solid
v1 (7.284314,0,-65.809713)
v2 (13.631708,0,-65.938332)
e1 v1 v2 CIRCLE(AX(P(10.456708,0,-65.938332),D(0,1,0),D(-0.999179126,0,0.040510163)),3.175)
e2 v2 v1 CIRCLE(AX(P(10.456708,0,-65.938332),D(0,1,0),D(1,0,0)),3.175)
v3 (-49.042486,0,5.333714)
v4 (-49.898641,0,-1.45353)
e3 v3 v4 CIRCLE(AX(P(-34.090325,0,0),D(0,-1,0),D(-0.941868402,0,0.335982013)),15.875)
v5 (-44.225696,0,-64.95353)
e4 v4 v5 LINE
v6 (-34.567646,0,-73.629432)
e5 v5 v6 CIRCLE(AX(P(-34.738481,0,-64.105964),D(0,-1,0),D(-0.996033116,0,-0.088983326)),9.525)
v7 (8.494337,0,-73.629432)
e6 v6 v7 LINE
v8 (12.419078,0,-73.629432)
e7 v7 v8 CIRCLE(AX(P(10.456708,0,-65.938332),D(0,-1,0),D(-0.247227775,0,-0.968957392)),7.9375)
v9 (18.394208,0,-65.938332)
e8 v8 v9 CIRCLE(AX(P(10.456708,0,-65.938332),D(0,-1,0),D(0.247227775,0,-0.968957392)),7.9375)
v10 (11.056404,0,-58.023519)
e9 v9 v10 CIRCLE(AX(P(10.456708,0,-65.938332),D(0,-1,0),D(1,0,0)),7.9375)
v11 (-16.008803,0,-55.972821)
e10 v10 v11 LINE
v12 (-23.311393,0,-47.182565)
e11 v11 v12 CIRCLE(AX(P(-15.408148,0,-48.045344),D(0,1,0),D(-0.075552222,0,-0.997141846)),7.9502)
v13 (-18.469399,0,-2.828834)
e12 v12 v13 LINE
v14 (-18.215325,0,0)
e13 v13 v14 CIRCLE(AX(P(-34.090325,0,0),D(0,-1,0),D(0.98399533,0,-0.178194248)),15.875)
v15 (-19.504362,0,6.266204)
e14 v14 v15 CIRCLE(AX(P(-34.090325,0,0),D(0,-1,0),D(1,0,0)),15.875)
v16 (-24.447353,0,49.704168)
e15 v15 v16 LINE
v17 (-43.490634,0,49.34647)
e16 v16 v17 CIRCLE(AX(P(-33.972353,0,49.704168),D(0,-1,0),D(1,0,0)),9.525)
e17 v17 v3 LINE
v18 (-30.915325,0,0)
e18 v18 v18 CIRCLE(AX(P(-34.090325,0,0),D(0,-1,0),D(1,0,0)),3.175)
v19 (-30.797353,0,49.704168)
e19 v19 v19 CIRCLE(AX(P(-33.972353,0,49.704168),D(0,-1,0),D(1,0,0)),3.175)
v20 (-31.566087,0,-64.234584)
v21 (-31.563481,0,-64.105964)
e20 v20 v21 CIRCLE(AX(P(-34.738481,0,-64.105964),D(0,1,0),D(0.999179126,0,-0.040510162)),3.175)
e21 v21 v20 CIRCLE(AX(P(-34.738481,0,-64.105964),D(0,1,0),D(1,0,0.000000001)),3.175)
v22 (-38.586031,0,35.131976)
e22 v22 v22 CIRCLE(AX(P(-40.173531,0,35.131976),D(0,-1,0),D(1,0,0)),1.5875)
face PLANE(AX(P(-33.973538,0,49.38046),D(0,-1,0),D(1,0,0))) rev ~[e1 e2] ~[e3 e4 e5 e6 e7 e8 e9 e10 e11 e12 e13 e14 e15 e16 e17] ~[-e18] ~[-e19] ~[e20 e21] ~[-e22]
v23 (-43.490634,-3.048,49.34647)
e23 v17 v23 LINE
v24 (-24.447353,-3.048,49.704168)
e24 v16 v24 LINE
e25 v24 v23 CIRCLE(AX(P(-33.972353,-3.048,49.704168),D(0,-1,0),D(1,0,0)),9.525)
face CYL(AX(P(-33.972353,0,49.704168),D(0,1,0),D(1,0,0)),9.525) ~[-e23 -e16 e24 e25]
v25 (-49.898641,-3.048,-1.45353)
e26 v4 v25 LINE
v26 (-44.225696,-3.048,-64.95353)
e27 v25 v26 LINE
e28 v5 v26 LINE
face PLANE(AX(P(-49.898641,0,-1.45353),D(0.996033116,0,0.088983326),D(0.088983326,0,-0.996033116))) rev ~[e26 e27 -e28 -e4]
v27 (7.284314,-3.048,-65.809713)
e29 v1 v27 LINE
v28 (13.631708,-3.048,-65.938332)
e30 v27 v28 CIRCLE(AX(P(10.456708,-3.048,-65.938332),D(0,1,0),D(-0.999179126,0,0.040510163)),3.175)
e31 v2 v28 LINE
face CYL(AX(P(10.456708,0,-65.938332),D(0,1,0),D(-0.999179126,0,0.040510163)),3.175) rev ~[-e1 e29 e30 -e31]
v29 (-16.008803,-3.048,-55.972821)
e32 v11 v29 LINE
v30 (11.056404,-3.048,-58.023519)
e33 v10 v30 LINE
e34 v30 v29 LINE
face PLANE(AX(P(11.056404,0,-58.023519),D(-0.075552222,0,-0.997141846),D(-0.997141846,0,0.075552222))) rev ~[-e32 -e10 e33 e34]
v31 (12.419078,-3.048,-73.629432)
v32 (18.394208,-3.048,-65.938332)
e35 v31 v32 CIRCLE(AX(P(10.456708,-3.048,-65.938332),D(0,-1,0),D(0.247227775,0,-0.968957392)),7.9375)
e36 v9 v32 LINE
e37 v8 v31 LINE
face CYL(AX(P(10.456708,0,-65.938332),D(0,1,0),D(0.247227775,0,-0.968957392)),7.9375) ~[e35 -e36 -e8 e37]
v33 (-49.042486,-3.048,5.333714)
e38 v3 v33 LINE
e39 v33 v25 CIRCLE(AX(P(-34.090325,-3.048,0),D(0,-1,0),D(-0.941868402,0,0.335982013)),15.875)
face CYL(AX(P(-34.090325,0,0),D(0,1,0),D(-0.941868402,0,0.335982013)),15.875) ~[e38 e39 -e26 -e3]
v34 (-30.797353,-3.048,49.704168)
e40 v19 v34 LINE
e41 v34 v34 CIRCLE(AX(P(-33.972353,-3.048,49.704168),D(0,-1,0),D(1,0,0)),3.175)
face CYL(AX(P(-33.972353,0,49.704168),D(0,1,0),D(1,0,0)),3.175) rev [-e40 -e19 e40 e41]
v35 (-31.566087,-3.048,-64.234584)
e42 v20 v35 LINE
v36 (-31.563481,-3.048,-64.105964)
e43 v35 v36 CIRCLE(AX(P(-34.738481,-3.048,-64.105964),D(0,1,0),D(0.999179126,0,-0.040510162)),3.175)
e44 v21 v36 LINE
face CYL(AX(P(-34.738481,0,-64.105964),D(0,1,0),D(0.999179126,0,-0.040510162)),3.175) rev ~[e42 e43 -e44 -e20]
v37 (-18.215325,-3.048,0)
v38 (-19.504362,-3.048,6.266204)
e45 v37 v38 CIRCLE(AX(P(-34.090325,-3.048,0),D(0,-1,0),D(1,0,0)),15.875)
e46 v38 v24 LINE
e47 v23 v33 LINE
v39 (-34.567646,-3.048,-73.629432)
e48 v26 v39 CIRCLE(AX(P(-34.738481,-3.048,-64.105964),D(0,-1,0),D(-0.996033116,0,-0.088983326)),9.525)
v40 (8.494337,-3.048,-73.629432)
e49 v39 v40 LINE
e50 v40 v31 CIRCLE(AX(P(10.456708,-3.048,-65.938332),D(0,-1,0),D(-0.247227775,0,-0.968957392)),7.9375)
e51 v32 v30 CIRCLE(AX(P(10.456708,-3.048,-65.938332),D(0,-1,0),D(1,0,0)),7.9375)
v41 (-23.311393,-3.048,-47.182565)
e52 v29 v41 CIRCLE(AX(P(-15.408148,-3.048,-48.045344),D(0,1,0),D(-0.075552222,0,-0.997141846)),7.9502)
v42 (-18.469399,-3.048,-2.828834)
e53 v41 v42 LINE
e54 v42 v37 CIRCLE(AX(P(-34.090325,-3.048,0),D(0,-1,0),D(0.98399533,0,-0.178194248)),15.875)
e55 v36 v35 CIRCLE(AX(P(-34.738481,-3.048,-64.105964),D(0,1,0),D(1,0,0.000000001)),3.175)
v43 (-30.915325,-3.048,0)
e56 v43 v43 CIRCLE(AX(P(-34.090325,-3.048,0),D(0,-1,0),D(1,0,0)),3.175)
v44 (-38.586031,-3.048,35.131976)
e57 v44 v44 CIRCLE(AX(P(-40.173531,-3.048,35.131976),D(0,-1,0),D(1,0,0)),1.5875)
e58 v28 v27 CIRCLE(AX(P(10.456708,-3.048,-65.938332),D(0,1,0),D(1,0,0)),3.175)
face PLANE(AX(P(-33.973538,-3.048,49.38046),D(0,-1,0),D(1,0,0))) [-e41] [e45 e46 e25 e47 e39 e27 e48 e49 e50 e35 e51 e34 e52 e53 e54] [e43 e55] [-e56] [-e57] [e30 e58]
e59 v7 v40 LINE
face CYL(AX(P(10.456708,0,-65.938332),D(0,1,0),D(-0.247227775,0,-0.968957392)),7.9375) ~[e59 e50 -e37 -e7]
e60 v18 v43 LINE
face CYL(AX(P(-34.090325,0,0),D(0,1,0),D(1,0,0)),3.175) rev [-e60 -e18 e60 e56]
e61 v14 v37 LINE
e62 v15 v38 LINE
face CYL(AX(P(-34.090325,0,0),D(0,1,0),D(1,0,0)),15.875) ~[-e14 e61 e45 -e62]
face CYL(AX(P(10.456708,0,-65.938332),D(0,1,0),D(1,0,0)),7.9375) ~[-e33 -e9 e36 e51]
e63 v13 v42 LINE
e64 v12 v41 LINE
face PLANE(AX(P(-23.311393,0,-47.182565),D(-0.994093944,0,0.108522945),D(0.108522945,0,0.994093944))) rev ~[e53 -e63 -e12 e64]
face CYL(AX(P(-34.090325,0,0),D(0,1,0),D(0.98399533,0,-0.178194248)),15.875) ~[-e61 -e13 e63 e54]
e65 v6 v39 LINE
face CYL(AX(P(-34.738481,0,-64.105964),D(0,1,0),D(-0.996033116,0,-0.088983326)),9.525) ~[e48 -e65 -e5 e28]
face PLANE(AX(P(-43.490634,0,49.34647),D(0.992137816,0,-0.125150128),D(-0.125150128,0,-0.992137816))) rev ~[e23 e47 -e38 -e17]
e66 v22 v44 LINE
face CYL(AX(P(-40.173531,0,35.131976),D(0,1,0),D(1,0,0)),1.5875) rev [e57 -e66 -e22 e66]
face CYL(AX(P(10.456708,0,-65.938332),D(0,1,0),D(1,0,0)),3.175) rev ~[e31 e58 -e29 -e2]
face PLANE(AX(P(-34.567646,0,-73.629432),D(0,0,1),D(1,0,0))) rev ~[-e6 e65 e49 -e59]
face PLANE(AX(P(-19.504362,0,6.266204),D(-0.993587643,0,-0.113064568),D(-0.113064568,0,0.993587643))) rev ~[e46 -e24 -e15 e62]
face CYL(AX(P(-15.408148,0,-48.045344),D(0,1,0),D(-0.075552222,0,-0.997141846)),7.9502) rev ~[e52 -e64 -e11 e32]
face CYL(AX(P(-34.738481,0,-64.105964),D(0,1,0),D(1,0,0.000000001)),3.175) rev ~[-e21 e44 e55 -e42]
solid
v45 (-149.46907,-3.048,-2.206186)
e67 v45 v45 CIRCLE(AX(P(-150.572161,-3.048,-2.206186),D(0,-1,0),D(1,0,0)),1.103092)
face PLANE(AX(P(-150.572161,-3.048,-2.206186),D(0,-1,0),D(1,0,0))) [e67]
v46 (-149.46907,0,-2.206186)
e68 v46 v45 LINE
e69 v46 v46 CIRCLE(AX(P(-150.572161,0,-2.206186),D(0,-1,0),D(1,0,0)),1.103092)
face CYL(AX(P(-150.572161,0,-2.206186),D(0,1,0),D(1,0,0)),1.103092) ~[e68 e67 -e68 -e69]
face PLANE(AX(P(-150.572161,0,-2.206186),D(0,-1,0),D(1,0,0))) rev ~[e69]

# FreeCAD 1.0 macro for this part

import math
import FreeCAD as App
import Part
import Sketcher
from FreeCAD import Vector
Q = App.Units.Quantity

doc = App.newDocument("Part")
body = doc.addObject("PartDesign::Body", "Body")

sketch1 = body.newObject("Sketcher::SketchObject", "Sketch")
sketch1.AttachmentSupport = (doc.getObject("XZ_Plane"), [""])
sketch1.MapMode = "FlatFace"
sketch1.addGeometry([
    Part.LineSegment(Vector(-19.5, 6.27, 0), Vector(-24.45, 49.7, 0)),
    Part.ArcOfCircle(Part.Circle(Vector(-33.97, 49.7, 0), Vector(0, 0, 1), 9.53), math.radians(0), math.radians(182)),
    Part.LineSegment(Vector(-43.49, 49.35, 0), Vector(-49.04, 5.33, 0)),
    Part.ArcOfCircle(Part.Circle(Vector(-34.09, 0, 0), Vector(0, 0, 1), 15.87), math.radians(160), math.radians(185)),
    Part.LineSegment(Vector(-49.9, -1.45, 0), Vector(-44.23, -64.95, 0)),
    Part.ArcOfCircle(Part.Circle(Vector(-34.74, -64.11, 0), Vector(0, 0, 1), 9.53), math.radians(-175), math.radians(-89)),
    Part.LineSegment(Vector(-34.57, -73.63, 0), Vector(8.49, -73.63, 0)),
    Part.ArcOfCircle(Part.Circle(Vector(10.46, -65.94, 0), Vector(0, 0, 1), 7.94), math.radians(-104), math.radians(-76)),
    Part.ArcOfCircle(Part.Circle(Vector(10.46, -65.94, 0), Vector(0, 0, 1), 7.94), math.radians(-76), math.radians(0)),
    Part.ArcOfCircle(Part.Circle(Vector(10.46, -65.94, 0), Vector(0, 0, 1), 7.94), math.radians(0), math.radians(86)),
    Part.LineSegment(Vector(11.06, -58.02, 0), Vector(-16.01, -55.97, 0)),
    Part.ArcOfCircle(Part.Circle(Vector(-15.41, -48.05, 0), Vector(0, 0, 1), 7.95), math.radians(174), math.radians(266)),
    Part.LineSegment(Vector(-23.31, -47.18, 0), Vector(-18.47, -2.83, 0)),
    Part.ArcOfCircle(Part.Circle(Vector(-34.09, 0, 0), Vector(0, 0, 1), 15.88), math.radians(-10.26), math.radians(0)),
    Part.ArcOfCircle(Part.Circle(Vector(-34.09, 0, 0), Vector(0, 0, 1), 15.87), math.radians(0), math.radians(23)),
    Part.ArcOfCircle(Part.Circle(Vector(-34.74, -64.11, 0), Vector(0, 0, 1), 3.17), math.radians(0), math.radians(358)),
    Part.ArcOfCircle(Part.Circle(Vector(-34.74, -64.11, 0), Vector(0, 0, 1), 3.17), math.radians(-2.32), math.radians(0)),
    Part.ArcOfCircle(Part.Circle(Vector(10.46, -65.94, 0), Vector(0, 0, 1), 3.17), math.radians(0), math.radians(178)),
    Part.ArcOfCircle(Part.Circle(Vector(10.46, -65.94, 0), Vector(0, 0, 1), 3.17), math.radians(178), math.radians(360)),
    Part.Circle(Vector(-34.09, 0, 0), Vector(0, 0, 1), 3.17),
    Part.Circle(Vector(-40.17, 35.13, 0), Vector(0, 0, 1), 1.59),
    Part.Circle(Vector(-33.97, 49.7, 0), Vector(0, 0, 1), 3.17),
], False)
sketch1.addConstraint([
    Sketcher.Constraint("Coincident", 0, 2, 1, 1),
    Sketcher.Constraint("Coincident", 1, 2, 2, 1),
    Sketcher.Constraint("Coincident", 2, 2, 3, 1),
    Sketcher.Constraint("Coincident", 3, 2, 4, 1),
    Sketcher.Constraint("Tangent", 4, 2, 5, 1),
    Sketcher.Constraint("Coincident", 5, 2, 6, 1),
    Sketcher.Constraint("Coincident", 6, 2, 7, 1),
    Sketcher.Constraint("Tangent", 7, 2, 8, 1),
    Sketcher.Constraint("Tangent", 8, 2, 9, 1),
    Sketcher.Constraint("Tangent", 9, 2, 10, 1),
    Sketcher.Constraint("Tangent", 10, 2, 11, 2),
    Sketcher.Constraint("Tangent", 11, 1, 12, 1),
    Sketcher.Constraint("Coincident", 12, 2, 13, 1),
    Sketcher.Constraint("Tangent", 13, 2, 14, 1),
    Sketcher.Constraint("Coincident", 14, 2, 0, 1),
    Sketcher.Constraint("Tangent", 15, 1, 16, 2),
    Sketcher.Constraint("Coincident", 16, 1, 15, 2),
    Sketcher.Constraint("Tangent", 17, 1, 18, 2),
    Sketcher.Constraint("Coincident", 18, 1, 17, 2),
    Sketcher.Constraint("Horizontal", 6),
    Sketcher.Constraint("Coincident", 9, 3, 7, 3),
    Sketcher.Constraint("Coincident", 13, 3, 3, 3),
    Sketcher.Constraint("Coincident", 15, 3, 5, 3),
    Sketcher.Constraint("Coincident", 17, 3, 7, 3),
    Sketcher.Constraint("Coincident", 19, 3, 3, 3),
    Sketcher.Constraint("Coincident", 21, 3, 1, 3),
    Sketcher.Constraint("Equal", 1, 5),
    Sketcher.Constraint("Equal", 3, 13),
    Sketcher.Constraint("Equal", 13, 14),
    Sketcher.Constraint("Equal", 16, 17),
    Sketcher.Constraint("Equal", 18, 19),
    Sketcher.Constraint("Equal", 19, 21),
    Sketcher.Constraint("PointOnObject", 3, 3, -1),
    Sketcher.Constraint("PointOnObject", 13, 2, -1),
    Sketcher.Constraint("Horizontal", 21, 3, 0, 2),
    Sketcher.Constraint("Horizontal", 6, 2, 7, 2),
    Sketcher.Constraint("Horizontal", 18, 3, 8, 2),
    Sketcher.Constraint("Horizontal", 16, 3, 15, 1),
    Sketcher.Constraint("Horizontal", 8, 2, 17, 1),
    Sketcher.Constraint("Diameter", 19, Q("0.25 in")),
    Sketcher.Constraint("Diameter", 20, Q("0.125 in")),
    Sketcher.Constraint("Radius", 1, Q("0.375 in")),
    Sketcher.Constraint("Radius", 3, Q("0.625 in")),
    Sketcher.Constraint("Radius", 7, Q("0.3125 in")),
    Sketcher.Constraint("Radius", 11, Q("0.313 in")),
    Sketcher.Constraint("Distance", 0, Q("43.718301 mm")),
    Sketcher.Constraint("Distance", 4, Q("63.7529 mm")),
    Sketcher.Constraint("DistanceX", 12, 2, -1, 1, Q("18.469399 mm")),
    Sketcher.Constraint("DistanceY", 7, 3, 1, 3, Q("115.6425 mm")),
    Sketcher.Constraint("DistanceY", 1, 2, 1, 3, Q("0.357698 mm")),
    Sketcher.Constraint("DistanceY", 5, 2, 4, 2, Q("8.675902 mm")),
    Sketcher.Constraint("DistanceX", 5, 2, 11, 3, Q("19.159499 mm")),
    Sketcher.Constraint("DistanceY", 6, 2, 7, 3, Q("7.691099 mm")),
    Sketcher.Constraint("DistanceY", 16, 3, 11, 1, Q("16.923399 mm")),
    Sketcher.Constraint("DistanceX", 6, 1, 6, 2, Q("43.061984 mm")),
    Sketcher.Constraint("DistanceX", 5, 3, -1, 1, Q("34.738481 mm")),
    Sketcher.Constraint("DistanceX", 20, 3, -1, 1, Q("40.173531 mm")),
    Sketcher.Constraint("DistanceY", -1, 1, 1, 2, Q("49.34647 mm")),
    Sketcher.Constraint("DistanceX", 3, 2, -1, 1, Q("49.898641 mm")),
    Sketcher.Constraint("DistanceX", 14, 2, -1, 1, Q("19.504362 mm")),
    Sketcher.Constraint("DistanceY", 20, 3, 1, 3, Q("14.572192 mm")),
    Sketcher.Constraint("DistanceX", 2, 2, 3, 3, Q("14.952161 mm")),
    Sketcher.Constraint("DistanceY", 16, 1, 15, 1, Q("0.12862 mm")),
    Sketcher.Constraint("DistanceY", 7, 3, 18, 1, Q("0.12862 mm")),
])
pad1 = body.newObject("PartDesign::Pad", "Pad")
pad1.Profile = sketch1
pad1.Length = Q("0.12 in")
body2 = doc.addObject("PartDesign::Body", "Body001")

sketch2 = body2.newObject("Sketcher::SketchObject", "Sketch001")
sketch2.AttachmentSupport = (doc.getObject("XZ_Plane001"), [""])
sketch2.MapMode = "FlatFace"
sketch2.addGeometry(Part.Circle(Vector(-150.6, -2.2, 0), Vector(0, 0, 1), 1.1), False)
sketch2.addConstraint([
    Sketcher.Constraint("Diameter", 0, Q("2.206184 mm")),
    Sketcher.Constraint("DistanceX", 0, 3, -1, 1, Q("150.572161 mm")),
    Sketcher.Constraint("DistanceY", 0, 3, -1, 1, Q("2.206186 mm")),
])
pad2 = body2.newObject("PartDesign::Pad", "Pad001")
pad2.Profile = sketch2
pad2.Length = Q("0.12 in")

doc.recompute()
